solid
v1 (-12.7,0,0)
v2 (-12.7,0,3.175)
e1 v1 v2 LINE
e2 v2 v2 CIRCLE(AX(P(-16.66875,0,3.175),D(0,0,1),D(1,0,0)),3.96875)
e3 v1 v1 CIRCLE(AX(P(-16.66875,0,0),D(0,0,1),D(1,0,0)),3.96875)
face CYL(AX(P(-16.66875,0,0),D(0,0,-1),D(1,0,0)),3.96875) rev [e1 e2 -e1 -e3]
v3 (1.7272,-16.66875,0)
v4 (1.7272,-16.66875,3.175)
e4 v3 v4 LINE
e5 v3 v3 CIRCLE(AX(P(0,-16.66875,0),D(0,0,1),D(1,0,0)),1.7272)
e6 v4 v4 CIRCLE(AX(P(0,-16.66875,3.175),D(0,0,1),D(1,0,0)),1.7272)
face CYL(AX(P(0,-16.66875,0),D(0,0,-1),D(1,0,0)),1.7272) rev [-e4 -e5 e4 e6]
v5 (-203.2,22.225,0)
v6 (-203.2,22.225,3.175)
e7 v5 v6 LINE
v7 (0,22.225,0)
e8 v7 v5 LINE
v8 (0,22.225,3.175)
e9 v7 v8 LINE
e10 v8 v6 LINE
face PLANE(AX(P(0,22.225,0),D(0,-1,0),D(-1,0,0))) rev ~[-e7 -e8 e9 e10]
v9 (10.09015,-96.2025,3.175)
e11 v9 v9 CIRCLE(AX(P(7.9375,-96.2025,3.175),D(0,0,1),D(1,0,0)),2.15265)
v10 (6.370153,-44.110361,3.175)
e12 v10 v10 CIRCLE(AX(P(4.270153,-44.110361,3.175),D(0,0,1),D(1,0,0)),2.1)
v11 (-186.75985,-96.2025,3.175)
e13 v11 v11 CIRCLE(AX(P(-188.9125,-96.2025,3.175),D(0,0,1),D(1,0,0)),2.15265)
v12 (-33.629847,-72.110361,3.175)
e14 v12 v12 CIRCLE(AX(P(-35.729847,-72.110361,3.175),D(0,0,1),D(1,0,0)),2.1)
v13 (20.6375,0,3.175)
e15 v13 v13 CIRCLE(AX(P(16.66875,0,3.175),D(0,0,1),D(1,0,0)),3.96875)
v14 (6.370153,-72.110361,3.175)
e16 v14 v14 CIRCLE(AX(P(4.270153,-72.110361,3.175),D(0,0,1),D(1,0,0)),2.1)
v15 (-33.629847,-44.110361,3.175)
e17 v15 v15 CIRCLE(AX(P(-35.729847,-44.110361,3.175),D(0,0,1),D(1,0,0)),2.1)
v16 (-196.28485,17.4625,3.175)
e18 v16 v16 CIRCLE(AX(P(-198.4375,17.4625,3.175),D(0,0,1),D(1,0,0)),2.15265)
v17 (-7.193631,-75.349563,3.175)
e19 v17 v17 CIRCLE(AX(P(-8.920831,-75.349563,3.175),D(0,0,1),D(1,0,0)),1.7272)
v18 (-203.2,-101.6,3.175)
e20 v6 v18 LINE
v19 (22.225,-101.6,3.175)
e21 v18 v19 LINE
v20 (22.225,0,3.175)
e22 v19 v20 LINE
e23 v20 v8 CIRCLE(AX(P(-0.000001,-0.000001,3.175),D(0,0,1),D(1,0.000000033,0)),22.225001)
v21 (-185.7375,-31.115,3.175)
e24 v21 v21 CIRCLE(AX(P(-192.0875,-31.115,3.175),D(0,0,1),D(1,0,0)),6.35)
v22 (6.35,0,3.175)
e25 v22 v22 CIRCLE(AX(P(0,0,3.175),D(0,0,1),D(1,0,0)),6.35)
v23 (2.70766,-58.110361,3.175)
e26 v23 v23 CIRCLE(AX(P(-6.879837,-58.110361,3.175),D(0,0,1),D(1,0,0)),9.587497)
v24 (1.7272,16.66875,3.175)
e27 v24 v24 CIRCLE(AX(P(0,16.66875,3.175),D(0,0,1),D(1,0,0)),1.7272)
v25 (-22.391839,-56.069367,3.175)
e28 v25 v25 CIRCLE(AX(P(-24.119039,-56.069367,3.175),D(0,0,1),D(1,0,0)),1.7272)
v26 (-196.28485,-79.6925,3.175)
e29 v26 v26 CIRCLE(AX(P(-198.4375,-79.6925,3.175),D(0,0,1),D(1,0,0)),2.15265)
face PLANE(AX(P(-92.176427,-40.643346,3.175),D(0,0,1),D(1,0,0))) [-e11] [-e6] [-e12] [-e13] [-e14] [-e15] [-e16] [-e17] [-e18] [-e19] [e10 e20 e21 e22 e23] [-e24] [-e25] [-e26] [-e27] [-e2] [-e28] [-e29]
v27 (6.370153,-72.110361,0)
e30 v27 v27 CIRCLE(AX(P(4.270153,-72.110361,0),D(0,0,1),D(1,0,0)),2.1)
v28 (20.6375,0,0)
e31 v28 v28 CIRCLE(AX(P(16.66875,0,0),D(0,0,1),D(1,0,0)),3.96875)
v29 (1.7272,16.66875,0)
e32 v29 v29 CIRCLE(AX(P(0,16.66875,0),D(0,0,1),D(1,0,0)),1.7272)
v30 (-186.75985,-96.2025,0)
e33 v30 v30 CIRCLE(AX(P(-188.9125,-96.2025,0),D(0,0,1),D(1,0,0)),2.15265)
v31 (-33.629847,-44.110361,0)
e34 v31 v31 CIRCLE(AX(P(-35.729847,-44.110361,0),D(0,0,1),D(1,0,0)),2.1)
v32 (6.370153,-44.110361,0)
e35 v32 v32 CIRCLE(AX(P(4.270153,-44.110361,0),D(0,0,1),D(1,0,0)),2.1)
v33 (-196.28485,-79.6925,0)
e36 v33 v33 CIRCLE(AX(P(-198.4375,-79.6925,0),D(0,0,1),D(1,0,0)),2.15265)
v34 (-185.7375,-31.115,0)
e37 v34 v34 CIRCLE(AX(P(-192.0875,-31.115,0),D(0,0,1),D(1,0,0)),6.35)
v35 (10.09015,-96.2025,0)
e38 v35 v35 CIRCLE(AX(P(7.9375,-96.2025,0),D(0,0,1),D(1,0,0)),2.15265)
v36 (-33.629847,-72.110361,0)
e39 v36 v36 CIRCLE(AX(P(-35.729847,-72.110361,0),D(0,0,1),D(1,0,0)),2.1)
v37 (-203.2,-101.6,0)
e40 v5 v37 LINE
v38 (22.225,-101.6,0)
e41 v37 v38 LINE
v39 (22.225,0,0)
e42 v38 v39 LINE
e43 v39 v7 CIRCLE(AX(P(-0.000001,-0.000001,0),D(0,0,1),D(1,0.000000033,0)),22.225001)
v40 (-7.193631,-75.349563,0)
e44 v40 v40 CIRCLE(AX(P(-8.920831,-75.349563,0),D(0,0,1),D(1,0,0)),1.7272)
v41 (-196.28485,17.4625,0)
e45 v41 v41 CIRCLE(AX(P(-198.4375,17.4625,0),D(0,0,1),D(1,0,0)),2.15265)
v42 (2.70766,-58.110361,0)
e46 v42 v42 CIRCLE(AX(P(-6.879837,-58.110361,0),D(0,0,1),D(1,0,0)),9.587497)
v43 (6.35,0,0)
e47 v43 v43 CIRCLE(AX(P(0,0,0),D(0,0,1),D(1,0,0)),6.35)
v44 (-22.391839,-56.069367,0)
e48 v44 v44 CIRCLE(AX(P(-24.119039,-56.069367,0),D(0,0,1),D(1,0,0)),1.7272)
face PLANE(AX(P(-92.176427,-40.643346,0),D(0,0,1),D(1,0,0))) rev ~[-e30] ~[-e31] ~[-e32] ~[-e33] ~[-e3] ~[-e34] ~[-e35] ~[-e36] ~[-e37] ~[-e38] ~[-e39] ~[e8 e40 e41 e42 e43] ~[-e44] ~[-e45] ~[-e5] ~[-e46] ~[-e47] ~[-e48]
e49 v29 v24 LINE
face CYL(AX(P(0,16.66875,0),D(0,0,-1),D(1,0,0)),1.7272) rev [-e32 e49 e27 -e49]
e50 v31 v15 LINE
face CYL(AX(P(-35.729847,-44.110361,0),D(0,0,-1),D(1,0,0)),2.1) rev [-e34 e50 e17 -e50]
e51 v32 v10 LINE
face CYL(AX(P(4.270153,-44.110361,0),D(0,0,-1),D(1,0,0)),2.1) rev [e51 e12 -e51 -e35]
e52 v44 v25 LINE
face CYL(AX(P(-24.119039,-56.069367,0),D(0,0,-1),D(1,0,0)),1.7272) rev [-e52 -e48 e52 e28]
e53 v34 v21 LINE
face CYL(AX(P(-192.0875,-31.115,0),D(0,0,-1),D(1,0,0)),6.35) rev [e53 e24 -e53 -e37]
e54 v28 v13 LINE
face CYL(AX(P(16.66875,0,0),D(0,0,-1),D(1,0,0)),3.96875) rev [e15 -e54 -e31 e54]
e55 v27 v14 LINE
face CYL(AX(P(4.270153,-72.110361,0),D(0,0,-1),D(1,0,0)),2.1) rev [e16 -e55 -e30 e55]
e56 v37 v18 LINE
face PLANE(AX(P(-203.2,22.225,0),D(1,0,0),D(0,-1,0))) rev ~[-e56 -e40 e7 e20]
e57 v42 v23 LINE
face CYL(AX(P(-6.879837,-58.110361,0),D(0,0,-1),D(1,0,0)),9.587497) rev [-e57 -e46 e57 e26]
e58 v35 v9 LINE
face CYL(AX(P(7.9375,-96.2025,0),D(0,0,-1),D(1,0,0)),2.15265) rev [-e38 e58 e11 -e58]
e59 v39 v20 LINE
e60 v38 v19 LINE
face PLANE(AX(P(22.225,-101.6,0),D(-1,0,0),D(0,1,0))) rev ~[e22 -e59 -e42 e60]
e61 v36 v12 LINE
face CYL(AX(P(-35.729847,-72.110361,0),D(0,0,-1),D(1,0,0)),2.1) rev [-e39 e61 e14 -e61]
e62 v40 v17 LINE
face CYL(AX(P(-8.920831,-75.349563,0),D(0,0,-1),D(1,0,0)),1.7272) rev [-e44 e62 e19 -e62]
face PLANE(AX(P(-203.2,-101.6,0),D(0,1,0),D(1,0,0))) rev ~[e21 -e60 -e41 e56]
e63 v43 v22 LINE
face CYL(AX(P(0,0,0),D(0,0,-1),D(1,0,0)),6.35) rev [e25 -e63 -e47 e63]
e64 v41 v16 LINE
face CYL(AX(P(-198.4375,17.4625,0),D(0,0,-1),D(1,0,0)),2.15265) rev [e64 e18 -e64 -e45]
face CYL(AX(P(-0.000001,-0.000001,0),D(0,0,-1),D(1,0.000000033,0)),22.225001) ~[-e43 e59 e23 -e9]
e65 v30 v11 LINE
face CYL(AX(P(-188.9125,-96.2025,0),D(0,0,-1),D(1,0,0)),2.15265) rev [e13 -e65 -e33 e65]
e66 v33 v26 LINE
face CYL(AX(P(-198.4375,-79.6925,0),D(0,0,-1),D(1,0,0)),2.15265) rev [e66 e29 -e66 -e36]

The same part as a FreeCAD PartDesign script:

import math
import FreeCAD as App
import Part
import Sketcher
Q = App.Units.Quantity

doc = App.newDocument("Part")
params = doc.addObject("Spreadsheet::Sheet", "Params")
for row, (alias, value) in enumerate([
    ("sketch1_diameter", "0.5 in"),
    ("sketch1_width", "8 in"),
    ("sketch1_height", "4 in"),
    ("sketch1_diameter2", "0.136 in"),
    ("sketch1_diameter3", "0.3125 in"),
    ("pad1_length", "0.125 in"),
], start=1):
    params.set(f"A{row}", alias)
    params.set(f"B{row}", "=" + value)
    params.setAlias(f"B{row}", alias)

body = doc.addObject("PartDesign::Body", "Body")

# Sketch on XY plane
sketch1 = body.newObject("Sketcher::SketchObject", "Sketch")
sketch1.AttachmentSupport = (doc.getObject("XY_Plane"), [""])
sketch1.MapMode = "FlatFace"
sketch1.addGeometry([
    Part.LineSegment(App.Vector(0, 22.2, 0), App.Vector(-203.2, 22.2, 0)),  # 0
    Part.LineSegment(App.Vector(-203.2, 22.2, 0), App.Vector(-203.2, -101.6, 0)),  # 1
    Part.LineSegment(App.Vector(-203.2, -101.6, 0), App.Vector(22.2, -101.6, 0)),  # 2
    Part.LineSegment(App.Vector(22.2, -101.6, 0), App.Vector(22.2, 0, 0)),  # 3
    Part.ArcOfCircle(Part.Circle(App.Vector(0, 0, 0), App.Vector(0, 0, 1), 22.2), math.radians(0), math.radians(90)),  # 4
    Part.Circle(App.Vector(-188.9, -96.2, 0), App.Vector(0, 0, 1), 2.2),  # 5
    Part.Circle(App.Vector(-198.4, -79.7, 0), App.Vector(0, 0, 1), 2.2),  # 6
    Part.Circle(App.Vector(-35.7, -72.1, 0), App.Vector(0, 0, 1), 2.1),  # 7
    Part.Circle(App.Vector(7.9, -96.2, 0), App.Vector(0, 0, 1), 2.2),  # 8
    Part.Circle(App.Vector(-8.9, -75.3, 0), App.Vector(0, 0, 1), 1.7),  # 9
    Part.Circle(App.Vector(4.3, -72.1, 0), App.Vector(0, 0, 1), 2.1),  # 10
    Part.Circle(App.Vector(-35.7, -44.1, 0), App.Vector(0, 0, 1), 2.1),  # 11
    Part.Circle(App.Vector(-24.1, -56.1, 0), App.Vector(0, 0, 1), 1.7),  # 12
    Part.Circle(App.Vector(-6.9, -58.1, 0), App.Vector(0, 0, 1), 9.6),  # 13
    Part.Circle(App.Vector(4.3, -44.1, 0), App.Vector(0, 0, 1), 2.1),  # 14
    Part.Circle(App.Vector(-192.1, -31.1, 0), App.Vector(0, 0, 1), 6.3),  # 15
    Part.Circle(App.Vector(-198.4, 17.5, 0), App.Vector(0, 0, 1), 2.2),  # 16
    Part.Circle(App.Vector(0, -16.7, 0), App.Vector(0, 0, 1), 1.7),  # 17
    Part.Circle(App.Vector(-16.7, 0, 0), App.Vector(0, 0, 1), 4),  # 18
    Part.Circle(App.Vector(0, 0, 0), App.Vector(0, 0, 1), 6.3),  # 19
    Part.Circle(App.Vector(16.7, 0, 0), App.Vector(0, 0, 1), 4),  # 20
    Part.Circle(App.Vector(0, 16.7, 0), App.Vector(0, 0, 1), 1.7),  # 21
], False)
sketch1.addConstraint([
    Sketcher.Constraint("Coincident", 0, 2, 1, 1),
    Sketcher.Constraint("Coincident", 1, 2, 2, 1),
    Sketcher.Constraint("Coincident", 2, 2, 3, 1),
    Sketcher.Constraint("Tangent", 3, 2, 4, 1),
    Sketcher.Constraint("Tangent", 4, 2, 0, 1),
    Sketcher.Constraint("Horizontal", 0),
    Sketcher.Constraint("Vertical", 1),
    Sketcher.Constraint("Horizontal", 2),
    Sketcher.Constraint("Vertical", 3),
    Sketcher.Constraint("Coincident", 4, 3, -1, 1),
    Sketcher.Constraint("Coincident", 19, 3, -1, 1),
    Sketcher.Constraint("Equal", 5, 6),
    Sketcher.Constraint("Equal", 6, 8),
    Sketcher.Constraint("Equal", 7, 10),
    Sketcher.Constraint("Equal", 10, 11),
    Sketcher.Constraint("Equal", 9, 12),
    Sketcher.Constraint("Equal", 11, 14),
    Sketcher.Constraint("Equal", 8, 16),
    Sketcher.Constraint("Equal", 12, 17),
    Sketcher.Constraint("Equal", 15, 19),
    Sketcher.Constraint("Equal", 18, 20),
    Sketcher.Constraint("Equal", 17, 21),
    Sketcher.Constraint("Symmetric", 18, 3, 20, 3, -1, 1),
    Sketcher.Constraint("Symmetric", 17, 3, 21, 3, -1, 1),
    Sketcher.Constraint("PointOnObject", 17, 3, -2),
    Sketcher.Constraint("PointOnObject", 18, 3, -1),
    Sketcher.Constraint("Horizontal", 5, 3, 8, 3),
    Sketcher.Constraint("Horizontal", 7, 3, 10, 3),
    Sketcher.Constraint("Horizontal", 11, 3, 14, 3),
    Sketcher.Constraint("Vertical", 7, 3, 11, 3),
    Sketcher.Constraint("Vertical", 10, 3, 14, 3),
    Sketcher.Constraint("Vertical", 6, 3, 16, 3),
    Sketcher.Constraint("Diameter", 15, Q("0.5 in")),
    Sketcher.Constraint("DistanceX", 0, 2, 0, 1, Q("8 in")),
    Sketcher.Constraint("DistanceY", 3, 1, 3, 2, Q("4 in")),
    Sketcher.Constraint("Diameter", 9, Q("0.136 in")),
    Sketcher.Constraint("Diameter", 18, Q("0.3125 in")),
    Sketcher.Constraint("Radius", 4, Q("0.875 in")),
    Sketcher.Constraint("Diameter", 5, Q("0.1695 in")),
    Sketcher.Constraint("DistanceY", 15, 3, 0, 2, Q("2.1 in")),
    Sketcher.Constraint("Diameter", 7, Q("4.2 mm")),
    Sketcher.Constraint("DistanceY", 5, 3, 6, 3, Q("0.65 in")),
    Sketcher.Constraint("DistanceX", 5, 3, 8, 3, Q("7.75 in")),
    Sketcher.Constraint("DistanceX", 6, 3, 15, 3, Q("0.25 in")),
    Sketcher.Constraint("DistanceX", 5, 3, -1, 1, Q("7.4375 in")),
    Sketcher.Constraint("DistanceX", 6, 3, -1, 1, Q("7.8125 in")),
    Sketcher.Constraint("DistanceY", -1, 1, 16, 3, Q("0.6875 in")),
    Sketcher.Constraint("DistanceY", 17, 3, -1, 1, Q("0.65625 in")),
    Sketcher.Constraint("DistanceX", 18, 3, -1, 1, Q("0.65625 in")),
    Sketcher.Constraint("DistanceY", 5, 3, 15, 3, Q("2.5625 in")),
    Sketcher.Constraint("Diameter", 13, Q("19.174994 mm")),
    Sketcher.Constraint("DistanceX", 7, 3, 10, 3, Q("40 mm")),
    Sketcher.Constraint("DistanceY", 7, 3, 11, 3, Q("28 mm")),
    Sketcher.Constraint("DistanceX", 12, 3, 13, 3, Q("17.239202 mm")),
    Sketcher.Constraint("DistanceY", 10, 3, 13, 3, Q("14 mm")),
    Sketcher.Constraint("DistanceY", 7, 3, -1, 1, Q("72.110361 mm")),
    Sketcher.Constraint("DistanceX", 9, 3, -1, 1, Q("8.920831 mm")),
    Sketcher.Constraint("DistanceX", 12, 3, -1, 1, Q("24.119039 mm")),
    Sketcher.Constraint("DistanceX", 13, 3, 10, 3, Q("11.14999 mm")),
    Sketcher.Constraint("DistanceY", 9, 3, -1, 1, Q("75.349563 mm")),
    Sketcher.Constraint("DistanceY", 12, 3, -1, 1, Q("56.069367 mm")),
])
sketch1.setExpression("Constraints[32]", "Params.sketch1_diameter")
sketch1.setExpression("Constraints[33]", "Params.sketch1_width")
sketch1.setExpression("Constraints[34]", "Params.sketch1_height")
sketch1.setExpression("Constraints[35]", "Params.sketch1_diameter2")
sketch1.setExpression("Constraints[36]", "Params.sketch1_diameter3")
pad1 = body.newObject("PartDesign::Pad", "Pad")
pad1.Profile = sketch1
pad1.setExpression("Length", "Params.pad1_length")

doc.recompute()
